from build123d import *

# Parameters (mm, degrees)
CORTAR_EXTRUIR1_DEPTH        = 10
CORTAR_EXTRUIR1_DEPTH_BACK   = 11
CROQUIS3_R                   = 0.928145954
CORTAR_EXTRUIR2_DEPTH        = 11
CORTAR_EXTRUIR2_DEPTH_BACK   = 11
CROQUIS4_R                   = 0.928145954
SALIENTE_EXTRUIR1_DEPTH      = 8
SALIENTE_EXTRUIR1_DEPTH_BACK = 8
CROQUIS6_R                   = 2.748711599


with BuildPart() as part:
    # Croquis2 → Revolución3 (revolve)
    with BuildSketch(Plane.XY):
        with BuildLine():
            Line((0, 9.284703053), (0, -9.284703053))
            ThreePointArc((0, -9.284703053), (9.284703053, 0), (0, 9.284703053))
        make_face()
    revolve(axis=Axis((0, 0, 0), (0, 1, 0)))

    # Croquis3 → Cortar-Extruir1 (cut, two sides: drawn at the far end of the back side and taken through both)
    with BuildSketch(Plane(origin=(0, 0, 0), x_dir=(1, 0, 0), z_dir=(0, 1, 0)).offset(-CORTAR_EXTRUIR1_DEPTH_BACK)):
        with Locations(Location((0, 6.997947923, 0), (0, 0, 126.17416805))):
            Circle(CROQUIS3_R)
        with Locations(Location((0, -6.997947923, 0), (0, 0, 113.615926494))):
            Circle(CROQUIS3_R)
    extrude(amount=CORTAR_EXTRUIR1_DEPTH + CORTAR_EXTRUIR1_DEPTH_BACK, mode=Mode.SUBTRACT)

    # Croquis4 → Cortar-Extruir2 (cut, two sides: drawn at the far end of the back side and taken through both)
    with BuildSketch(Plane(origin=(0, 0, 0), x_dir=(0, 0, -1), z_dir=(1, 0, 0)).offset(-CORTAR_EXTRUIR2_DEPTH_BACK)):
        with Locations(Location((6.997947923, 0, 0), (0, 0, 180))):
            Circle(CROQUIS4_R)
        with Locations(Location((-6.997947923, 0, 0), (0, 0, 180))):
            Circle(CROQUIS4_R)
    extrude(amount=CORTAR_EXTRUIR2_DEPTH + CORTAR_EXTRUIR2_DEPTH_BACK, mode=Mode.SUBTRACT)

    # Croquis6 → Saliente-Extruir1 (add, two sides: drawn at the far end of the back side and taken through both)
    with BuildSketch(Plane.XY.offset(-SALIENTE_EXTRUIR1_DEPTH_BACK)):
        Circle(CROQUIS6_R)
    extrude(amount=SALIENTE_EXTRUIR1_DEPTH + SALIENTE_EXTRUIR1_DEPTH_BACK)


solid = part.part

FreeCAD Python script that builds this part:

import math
import FreeCAD as App
import Part
import Sketcher

V = App.Vector

doc = App.newDocument("Part")
body = doc.addObject("PartDesign::Body", "Body")

# Sketch on XY plane
sketch1 = body.newObject("Sketcher::SketchObject", "Sketch")
sketch1.AttachmentSupport = (doc.getObject("XY_Plane"), [""])
sketch1.MapMode = "FlatFace"
sketch1.addGeometry(Part.LineSegment(V(0, 9.284703, 0), V(0, -9.284703, 0)), False)
sketch1.addGeometry(Part.ArcOfCircle(Part.Circle(V(0, 0, 0), V(0, 0, 1), 9.284703), math.radians(-90), math.radians(90)), False)
sketch1.addConstraint(Sketcher.Constraint("Coincident", 0, 1, 1, 2))
sketch1.addConstraint(Sketcher.Constraint("Coincident", 1, 1, 0, 2))
sketch1.addConstraint(Sketcher.Constraint("Vertical", 0))
sketch1.addConstraint(Sketcher.Constraint("Coincident", 1, 3, -1, 1))
sketch1.addConstraint(Sketcher.Constraint("PointOnObject", 0, 1, -2))
sketch1.addConstraint(Sketcher.Constraint("Radius", 1, 9.284703))
revolution = body.newObject("PartDesign::Revolution", "Revolution")
revolution.Profile = sketch1
revolution.ReferenceAxis = (sketch1, ["V_Axis"])
revolution.Angle = 360

# Sketch on XZ plane
sketch2 = body.newObject("Sketcher::SketchObject", "Sketch001")
sketch2.AttachmentSupport = (doc.getObject("XZ_Plane"), [""])
sketch2.MapMode = "FlatFace"
sketch2.addGeometry(Part.Circle(V(0, -6.997948, 0), V(0, 0, 1), 0.928146), False)
sketch2.addGeometry(Part.Circle(V(0, 6.997948, 0), V(0, 0, 1), 0.928146), False)
sketch2.addConstraint(Sketcher.Constraint("Equal", 0, 1))
sketch2.addConstraint(Sketcher.Constraint("Symmetric", 0, 3, 1, 3, -1, 1))
sketch2.addConstraint(Sketcher.Constraint("PointOnObject", 0, 3, -2))
sketch2.addConstraint(Sketcher.Constraint("Diameter", 0, 1.856292))
sketch2.addConstraint(Sketcher.Constraint("DistanceY", 0, 3, -1, 1, 6.997948))
pocket1 = body.newObject("PartDesign::Pocket", "Pocket")
pocket1.Profile = sketch2
pocket1.Type = "ThroughAll"
pocket1.Midplane = True

# Sketch on YZ plane
sketch3 = body.newObject("Sketcher::SketchObject", "Sketch002")
sketch3.AttachmentSupport = (doc.getObject("YZ_Plane"), [""])
sketch3.MapMode = "FlatFace"
sketch3.addGeometry(Part.Circle(V(0, -6.997948, 0), V(0, 0, 1), 0.928146), False)
sketch3.addGeometry(Part.Circle(V(0, 6.997948, 0), V(0, 0, 1), 0.928146), False)
sketch3.addConstraint(Sketcher.Constraint("Equal", 0, 1))
sketch3.addConstraint(Sketcher.Constraint("Symmetric", 0, 3, 1, 3, -1, 1))
sketch3.addConstraint(Sketcher.Constraint("PointOnObject", 0, 3, -2))
sketch3.addConstraint(Sketcher.Constraint("Diameter", 0, 1.856292))
sketch3.addConstraint(Sketcher.Constraint("DistanceY", 0, 3, -1, 1, 6.997948))
pocket2 = body.newObject("PartDesign::Pocket", "Pocket001")
pocket2.Profile = sketch3
pocket2.Type = "ThroughAll"
pocket2.Midplane = True

# Sketch on XY plane
sketch4 = body.newObject("Sketcher::SketchObject", "Sketch003")
sketch4.AttachmentSupport = (doc.getObject("XY_Plane"), [""])
sketch4.MapMode = "FlatFace"
sketch4.addGeometry(Part.Circle(V(0, 0, 0), V(0, 0, 1), 2.748712), False)
sketch4.addConstraint(Sketcher.Constraint("Coincident", 0, 3, -1, 1))
sketch4.addConstraint(Sketcher.Constraint("Diameter", 0, 5.497423))
pad1 = body.newObject("PartDesign::Pad", "Pad")
pad1.Profile = sketch4
pad1.Type = "TwoLengths"
pad1.Length = 8
pad1.Length2 = 8

doc.recompute()
